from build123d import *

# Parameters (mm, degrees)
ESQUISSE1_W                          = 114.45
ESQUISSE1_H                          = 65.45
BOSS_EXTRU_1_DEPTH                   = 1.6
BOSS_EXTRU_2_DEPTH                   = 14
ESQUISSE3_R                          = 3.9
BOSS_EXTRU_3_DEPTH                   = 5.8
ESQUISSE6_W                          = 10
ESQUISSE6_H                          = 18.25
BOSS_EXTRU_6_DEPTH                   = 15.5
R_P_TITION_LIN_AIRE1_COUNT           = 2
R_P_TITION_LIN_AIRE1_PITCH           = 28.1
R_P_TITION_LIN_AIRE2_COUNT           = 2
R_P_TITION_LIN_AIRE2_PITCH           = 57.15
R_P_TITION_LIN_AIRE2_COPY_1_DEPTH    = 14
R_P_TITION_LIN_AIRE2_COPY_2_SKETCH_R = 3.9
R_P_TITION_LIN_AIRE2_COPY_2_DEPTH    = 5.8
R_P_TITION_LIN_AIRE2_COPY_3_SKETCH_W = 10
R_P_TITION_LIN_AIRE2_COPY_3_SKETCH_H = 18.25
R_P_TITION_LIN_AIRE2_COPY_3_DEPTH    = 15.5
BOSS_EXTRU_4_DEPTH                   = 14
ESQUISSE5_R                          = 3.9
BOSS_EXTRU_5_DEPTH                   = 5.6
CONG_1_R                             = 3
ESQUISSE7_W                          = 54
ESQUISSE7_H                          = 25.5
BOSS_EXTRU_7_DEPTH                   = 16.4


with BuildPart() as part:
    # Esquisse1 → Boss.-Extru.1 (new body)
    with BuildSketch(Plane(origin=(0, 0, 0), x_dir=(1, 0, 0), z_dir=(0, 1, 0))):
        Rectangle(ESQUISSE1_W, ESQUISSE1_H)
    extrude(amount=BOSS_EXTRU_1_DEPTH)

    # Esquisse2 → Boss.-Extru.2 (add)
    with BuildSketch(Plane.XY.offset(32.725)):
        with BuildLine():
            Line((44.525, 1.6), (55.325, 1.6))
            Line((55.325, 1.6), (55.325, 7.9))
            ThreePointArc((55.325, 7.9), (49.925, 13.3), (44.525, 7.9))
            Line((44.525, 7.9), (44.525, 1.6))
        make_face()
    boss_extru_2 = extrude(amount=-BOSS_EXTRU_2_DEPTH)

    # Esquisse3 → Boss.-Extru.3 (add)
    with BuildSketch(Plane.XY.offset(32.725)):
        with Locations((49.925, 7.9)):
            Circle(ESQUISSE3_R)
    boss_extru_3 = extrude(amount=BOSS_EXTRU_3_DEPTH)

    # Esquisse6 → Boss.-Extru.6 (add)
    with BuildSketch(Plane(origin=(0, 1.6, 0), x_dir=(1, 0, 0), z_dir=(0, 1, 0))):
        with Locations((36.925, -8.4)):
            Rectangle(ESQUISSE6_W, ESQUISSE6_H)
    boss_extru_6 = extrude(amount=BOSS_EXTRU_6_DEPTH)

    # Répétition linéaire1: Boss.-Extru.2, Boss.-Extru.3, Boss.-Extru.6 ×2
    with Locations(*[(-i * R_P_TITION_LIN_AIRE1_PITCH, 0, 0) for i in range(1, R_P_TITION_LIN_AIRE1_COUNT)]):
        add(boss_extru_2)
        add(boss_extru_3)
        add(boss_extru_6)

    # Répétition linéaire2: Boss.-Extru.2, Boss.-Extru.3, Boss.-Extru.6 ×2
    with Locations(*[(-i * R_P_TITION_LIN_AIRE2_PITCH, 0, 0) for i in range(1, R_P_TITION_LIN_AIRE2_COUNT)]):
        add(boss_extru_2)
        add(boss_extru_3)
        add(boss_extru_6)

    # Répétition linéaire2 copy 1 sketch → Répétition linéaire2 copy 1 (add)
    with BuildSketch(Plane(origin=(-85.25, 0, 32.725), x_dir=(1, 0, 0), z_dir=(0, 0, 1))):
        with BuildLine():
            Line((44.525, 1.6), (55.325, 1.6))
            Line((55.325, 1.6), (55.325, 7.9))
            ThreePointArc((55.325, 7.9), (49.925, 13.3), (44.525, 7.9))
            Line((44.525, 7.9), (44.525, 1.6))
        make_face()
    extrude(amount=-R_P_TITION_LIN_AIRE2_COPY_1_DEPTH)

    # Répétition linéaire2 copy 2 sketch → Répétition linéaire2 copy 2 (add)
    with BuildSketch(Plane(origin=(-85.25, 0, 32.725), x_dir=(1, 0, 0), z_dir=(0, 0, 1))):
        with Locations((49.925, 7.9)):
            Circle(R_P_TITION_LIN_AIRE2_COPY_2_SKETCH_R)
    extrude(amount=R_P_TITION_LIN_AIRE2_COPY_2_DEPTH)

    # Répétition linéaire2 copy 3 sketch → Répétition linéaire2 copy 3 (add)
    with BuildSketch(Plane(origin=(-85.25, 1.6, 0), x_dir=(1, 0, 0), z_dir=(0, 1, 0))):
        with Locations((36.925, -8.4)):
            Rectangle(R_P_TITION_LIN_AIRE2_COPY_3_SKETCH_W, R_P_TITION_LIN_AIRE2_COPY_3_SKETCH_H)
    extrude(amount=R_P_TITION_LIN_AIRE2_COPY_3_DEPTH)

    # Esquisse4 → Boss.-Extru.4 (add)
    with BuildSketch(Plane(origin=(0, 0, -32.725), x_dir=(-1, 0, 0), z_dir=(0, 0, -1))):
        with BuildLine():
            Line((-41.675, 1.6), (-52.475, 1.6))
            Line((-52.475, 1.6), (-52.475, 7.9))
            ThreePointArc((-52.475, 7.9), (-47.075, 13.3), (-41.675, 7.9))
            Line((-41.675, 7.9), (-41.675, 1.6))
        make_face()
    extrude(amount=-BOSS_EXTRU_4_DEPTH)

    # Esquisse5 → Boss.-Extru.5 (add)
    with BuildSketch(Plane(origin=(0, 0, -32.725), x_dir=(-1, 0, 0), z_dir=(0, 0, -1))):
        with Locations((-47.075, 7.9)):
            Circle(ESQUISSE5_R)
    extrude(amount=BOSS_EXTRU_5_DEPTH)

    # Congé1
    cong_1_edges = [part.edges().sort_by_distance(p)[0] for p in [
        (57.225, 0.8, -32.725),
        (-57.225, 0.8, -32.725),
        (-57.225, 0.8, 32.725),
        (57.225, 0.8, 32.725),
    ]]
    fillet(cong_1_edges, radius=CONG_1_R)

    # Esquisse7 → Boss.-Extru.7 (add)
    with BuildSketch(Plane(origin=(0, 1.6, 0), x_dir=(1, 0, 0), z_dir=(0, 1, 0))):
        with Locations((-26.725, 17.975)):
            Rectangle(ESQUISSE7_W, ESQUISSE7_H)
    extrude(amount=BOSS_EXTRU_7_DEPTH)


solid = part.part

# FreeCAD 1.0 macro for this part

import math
import FreeCAD as App
import Part
import Sketcher


def edges_at(feature, points):
    """Names of the edges that pass closest to the given points."""
    edges = feature.Shape.Edges
    near = lambda p: min(range(len(edges)), key=lambda i: edges[i].distToShape(Part.Vertex(*p))[0])
    return sorted({f"Edge{near(p) + 1}" for p in points})


def add_polygon(sketch, points):
    """Adds a closed chain of lines whose ends are joined by coincident constraints."""
    first, n = sketch.GeometryCount, len(points)
    for a, b in zip(points, points[1:] + points[:1]):
        sketch.addGeometry(Part.LineSegment(App.Vector(*a, 0), App.Vector(*b, 0)), False)
    for i in range(n):
        sketch.addConstraint(Sketcher.Constraint("Coincident", first + i, 2, first + (i + 1) % n, 1))

doc = App.newDocument("Part")
body = doc.addObject("PartDesign::Body", "Body")

sketch1 = body.newObject("Sketcher::SketchObject", "Sketch")
sketch1.AttachmentSupport = (doc.getObject("XZ_Plane"), [""])
sketch1.MapMode = "FlatFace"
add_polygon(sketch1, [(-57, -33), (-57, 33), (57, 33), (57, -33)])
sketch1.addConstraint(Sketcher.Constraint("Vertical", 0))
sketch1.addConstraint(Sketcher.Constraint("Horizontal", 1))
sketch1.addConstraint(Sketcher.Constraint("Vertical", 2))
sketch1.addConstraint(Sketcher.Constraint("Horizontal", 3))
sketch1.addConstraint(Sketcher.Constraint("Symmetric", 0, 2, 2, 2, -1, 1))
sketch1.addConstraint(Sketcher.Constraint("DistanceX", 1, 1, 1, 2, 114.45))
sketch1.addConstraint(Sketcher.Constraint("DistanceY", 0, 1, 0, 2, 65.45))
pad1 = body.newObject("PartDesign::Pad", "Pad")
pad1.Profile = sketch1
pad1.Length = 1.6
pad1.Reversed = True

sketch2 = body.newObject("Sketcher::SketchObject", "Sketch001")
sketch2.AttachmentSupport = (doc.getObject("XY_Plane"), [""])
sketch2.MapMode = "FlatFace"
sketch2.AttachmentOffset = App.Placement(App.Vector(0, 0, 32.725), App.Rotation())
sketch2.addGeometry(Part.LineSegment(App.Vector(45, 2, 0), App.Vector(55, 2, 0)), False)
sketch2.addGeometry(Part.LineSegment(App.Vector(55, 2, 0), App.Vector(55, 8, 0)), False)
sketch2.addGeometry(Part.ArcOfCircle(Part.Circle(App.Vector(50, 8, 0), App.Vector(0, 0, 1), 5), math.radians(0), math.radians(180)), False)
sketch2.addGeometry(Part.LineSegment(App.Vector(45, 8, 0), App.Vector(45, 2, 0)), False)
sketch2.addConstraint(Sketcher.Constraint("Coincident", 0, 2, 1, 1))
sketch2.addConstraint(Sketcher.Constraint("Tangent", 1, 2, 2, 1))
sketch2.addConstraint(Sketcher.Constraint("Tangent", 2, 2, 3, 1))
sketch2.addConstraint(Sketcher.Constraint("Coincident", 3, 2, 0, 1))
sketch2.addConstraint(Sketcher.Constraint("Horizontal", 0))
sketch2.addConstraint(Sketcher.Constraint("Vertical", 1))
sketch2.addConstraint(Sketcher.Constraint("Vertical", 3))
sketch2.addConstraint(Sketcher.Constraint("Radius", 2, 5.4))
sketch2.addConstraint(Sketcher.Constraint("DistanceY", 1, 1, 1, 2, 6.3))
sketch2.addConstraint(Sketcher.Constraint("DistanceY", -1, 1, 2, 3, 7.9))
sketch2.addConstraint(Sketcher.Constraint("DistanceX", -1, 1, 2, 3, 49.925))
pad2 = body.newObject("PartDesign::Pad", "Pad001")
pad2.Profile = sketch2
pad2.Length = 14
pad2.Reversed = True

sketch3 = body.newObject("Sketcher::SketchObject", "Sketch002")
sketch3.AttachmentSupport = (doc.getObject("XY_Plane"), [""])
sketch3.MapMode = "FlatFace"
sketch3.AttachmentOffset = App.Placement(App.Vector(0, 0, 32.725), App.Rotation())
sketch3.addGeometry(Part.Circle(App.Vector(49.9, 7.9, 0), App.Vector(0, 0, 1), 3.9), False)
sketch3.addConstraint(Sketcher.Constraint("Diameter", 0, 7.8))
sketch3.addConstraint(Sketcher.Constraint("DistanceY", -1, 1, 0, 3, 7.9))
sketch3.addConstraint(Sketcher.Constraint("DistanceX", -1, 1, 0, 3, 49.925))
pad3 = body.newObject("PartDesign::Pad", "Pad002")
pad3.Profile = sketch3
pad3.Length = 5.8

sketch4 = body.newObject("Sketcher::SketchObject", "Sketch003")
sketch4.AttachmentSupport = (doc.getObject("XZ_Plane"), [""])
sketch4.MapMode = "FlatFace"
sketch4.AttachmentOffset = App.Placement(App.Vector(0, 0, -1.6), App.Rotation())
add_polygon(sketch4, [(32, -1), (32, 18), (42, 18), (42, -1)])
sketch4.addConstraint(Sketcher.Constraint("Vertical", 0))
sketch4.addConstraint(Sketcher.Constraint("Horizontal", 1))
sketch4.addConstraint(Sketcher.Constraint("Vertical", 2))
sketch4.addConstraint(Sketcher.Constraint("Horizontal", 3))
sketch4.addConstraint(Sketcher.Constraint("DistanceX", 1, 1, 1, 2, 10.0))
sketch4.addConstraint(Sketcher.Constraint("DistanceY", 0, 1, 0, 2, 18.25))
sketch4.addConstraint(Sketcher.Constraint("DistanceX", -1, 1, 0, 2, 31.925))
sketch4.addConstraint(Sketcher.Constraint("DistanceY", -1, 1, 0, 2, 17.525))
pad4 = body.newObject("PartDesign::Pad", "Pad003")
pad4.Profile = sketch4
pad4.Length = 15.5
pad4.Reversed = True
doc.recompute()

linearpattern = body.newObject("PartDesign::LinearPattern", "LinearPattern")
linearpattern.Originals = [pad2, pad3, pad4]
linearpattern.Direction = (doc.getObject("X_Axis"), [""])
linearpattern.Mode = "offset"
linearpattern.Offset = 28.1
linearpattern.Occurrences = 2
linearpattern.Reversed = True
body.Tip = linearpattern
doc.recompute()

linearpattern2 = body.newObject("PartDesign::LinearPattern", "LinearPattern001")
linearpattern2.Originals = [pad2, pad3, pad4]
linearpattern2.Direction = (doc.getObject("X_Axis"), [""])
linearpattern2.Mode = "offset"
linearpattern2.Offset = 57.15
linearpattern2.Occurrences = 2
linearpattern2.Reversed = True
body.Tip = linearpattern2

sketch5 = body.newObject("Sketcher::SketchObject", "Sketch004")
sketch5.AttachmentSupport = (doc.getObject("XY_Plane"), [""])
sketch5.MapMode = "FlatFace"
sketch5.AttachmentOffset = App.Placement(App.Vector(0, 0, 32.725), App.Rotation())
sketch5.addGeometry(Part.LineSegment(App.Vector(-41, 2, 0), App.Vector(-30, 2, 0)), False)
sketch5.addGeometry(Part.LineSegment(App.Vector(-30, 2, 0), App.Vector(-30, 8, 0)), False)
sketch5.addGeometry(Part.ArcOfCircle(Part.Circle(App.Vector(-35, 8, 0), App.Vector(0, 0, 1), 5), math.radians(0), math.radians(180)), False)
sketch5.addGeometry(Part.LineSegment(App.Vector(-41, 8, 0), App.Vector(-41, 2, 0)), False)
sketch5.addConstraint(Sketcher.Constraint("Coincident", 0, 2, 1, 1))
sketch5.addConstraint(Sketcher.Constraint("Tangent", 1, 2, 2, 1))
sketch5.addConstraint(Sketcher.Constraint("Tangent", 2, 2, 3, 1))
sketch5.addConstraint(Sketcher.Constraint("Coincident", 3, 2, 0, 1))
sketch5.addConstraint(Sketcher.Constraint("Horizontal", 0))
sketch5.addConstraint(Sketcher.Constraint("Vertical", 1))
sketch5.addConstraint(Sketcher.Constraint("Vertical", 3))
sketch5.addConstraint(Sketcher.Constraint("Radius", 2, 5.4))
sketch5.addConstraint(Sketcher.Constraint("DistanceY", 1, 1, 1, 2, 6.3))
sketch5.addConstraint(Sketcher.Constraint("DistanceY", -1, 1, 2, 3, 7.9))
sketch5.addConstraint(Sketcher.Constraint("DistanceX", 2, 3, -1, 1, 35.325))
pad5 = body.newObject("PartDesign::Pad", "Pad004")
pad5.Profile = sketch5
pad5.Length = 14
pad5.Reversed = True

sketch6 = body.newObject("Sketcher::SketchObject", "Sketch005")
sketch6.AttachmentSupport = (doc.getObject("XY_Plane"), [""])
sketch6.MapMode = "FlatFace"
sketch6.AttachmentOffset = App.Placement(App.Vector(0, 0, 32.725), App.Rotation())
sketch6.addGeometry(Part.Circle(App.Vector(-35.3, 7.9, 0), App.Vector(0, 0, 1), 3.9), False)
sketch6.addConstraint(Sketcher.Constraint("Diameter", 0, 7.8))
sketch6.addConstraint(Sketcher.Constraint("DistanceY", -1, 1, 0, 3, 7.9))
sketch6.addConstraint(Sketcher.Constraint("DistanceX", 0, 3, -1, 1, 35.325))
pad6 = body.newObject("PartDesign::Pad", "Pad005")
pad6.Profile = sketch6
pad6.Length = 5.8

sketch7 = body.newObject("Sketcher::SketchObject", "Sketch006")
sketch7.AttachmentSupport = (doc.getObject("XZ_Plane"), [""])
sketch7.MapMode = "FlatFace"
sketch7.AttachmentOffset = App.Placement(App.Vector(0, 0, -1.6), App.Rotation())
add_polygon(sketch7, [(-53, -1), (-53, 18), (-43, 18), (-43, -1)])
sketch7.addConstraint(Sketcher.Constraint("Vertical", 0))
sketch7.addConstraint(Sketcher.Constraint("Horizontal", 1))
sketch7.addConstraint(Sketcher.Constraint("Vertical", 2))
sketch7.addConstraint(Sketcher.Constraint("Horizontal", 3))
sketch7.addConstraint(Sketcher.Constraint("DistanceX", 1, 1, 1, 2, 10.0))
sketch7.addConstraint(Sketcher.Constraint("DistanceY", 0, 1, 0, 2, 18.25))
sketch7.addConstraint(Sketcher.Constraint("DistanceX", 0, 2, -1, 1, 53.325))
sketch7.addConstraint(Sketcher.Constraint("DistanceY", -1, 1, 0, 2, 17.525))
pad7 = body.newObject("PartDesign::Pad", "Pad006")
pad7.Profile = sketch7
pad7.Length = 15.5
pad7.Reversed = True

sketch8 = body.newObject("Sketcher::SketchObject", "Sketch007")
sketch8.AttachmentSupport = (doc.getObject("XY_Plane"), [""])
sketch8.MapMode = "FlatFace"
sketch8.AttachmentOffset = App.Placement(App.Vector(0, 0, -32.725), App.Rotation())
sketch8.addGeometry(Part.LineSegment(App.Vector(52, 2, 0), App.Vector(42, 2, 0)), False)
sketch8.addGeometry(Part.LineSegment(App.Vector(42, 2, 0), App.Vector(42, 8, 0)), False)
sketch8.addGeometry(Part.ArcOfCircle(Part.Circle(App.Vector(47, 8, 0), App.Vector(0, 0, 1), 5), math.radians(0), math.radians(180)), False)
sketch8.addGeometry(Part.LineSegment(App.Vector(52, 8, 0), App.Vector(52, 2, 0)), False)
sketch8.addConstraint(Sketcher.Constraint("Coincident", 0, 2, 1, 1))
sketch8.addConstraint(Sketcher.Constraint("Tangent", 1, 2, 2, 2))
sketch8.addConstraint(Sketcher.Constraint("Tangent", 2, 1, 3, 1))
sketch8.addConstraint(Sketcher.Constraint("Coincident", 3, 2, 0, 1))
sketch8.addConstraint(Sketcher.Constraint("Horizontal", 0))
sketch8.addConstraint(Sketcher.Constraint("Vertical", 1))
sketch8.addConstraint(Sketcher.Constraint("Vertical", 3))
sketch8.addConstraint(Sketcher.Constraint("Radius", 2, 5.4))
sketch8.addConstraint(Sketcher.Constraint("DistanceY", 1, 1, 1, 2, 6.3))
sketch8.addConstraint(Sketcher.Constraint("DistanceY", -1, 1, 2, 3, 7.9))
sketch8.addConstraint(Sketcher.Constraint("DistanceX", -1, 1, 2, 3, 47.075))
pad8 = body.newObject("PartDesign::Pad", "Pad007")
pad8.Profile = sketch8
pad8.Length = 14

sketch9 = body.newObject("Sketcher::SketchObject", "Sketch008")
sketch9.AttachmentSupport = (doc.getObject("XY_Plane"), [""])
sketch9.MapMode = "FlatFace"
sketch9.AttachmentOffset = App.Placement(App.Vector(0, 0, -32.725), App.Rotation())
sketch9.addGeometry(Part.Circle(App.Vector(47.1, 7.9, 0), App.Vector(0, 0, 1), 3.9), False)
sketch9.addConstraint(Sketcher.Constraint("Diameter", 0, 7.8))
sketch9.addConstraint(Sketcher.Constraint("DistanceY", -1, 1, 0, 3, 7.9))
sketch9.addConstraint(Sketcher.Constraint("DistanceX", -1, 1, 0, 3, 47.075))
pad9 = body.newObject("PartDesign::Pad", "Pad008")
pad9.Profile = sketch9
pad9.Length = 5.6
pad9.Reversed = True
doc.recompute()

fillet = body.newObject("PartDesign::Fillet", "Fillet")
fillet.Base = (pad9, edges_at(pad9, [
    (57.225, 0.8, -32.725),
    (-57.225, 0.8, -32.725),
    (-57.225, 0.8, 32.725),
    (57.225, 0.8, 32.725),
]))
fillet.Radius = 3

sketch10 = body.newObject("Sketcher::SketchObject", "Sketch009")
sketch10.AttachmentSupport = (doc.getObject("XZ_Plane"), [""])
sketch10.MapMode = "FlatFace"
sketch10.AttachmentOffset = App.Placement(App.Vector(0, 0, -1.6), App.Rotation())
add_polygon(sketch10, [(-54, -31), (-54, -5), (0, -5), (0, -31)])
sketch10.addConstraint(Sketcher.Constraint("Vertical", 0))
sketch10.addConstraint(Sketcher.Constraint("Horizontal", 1))
sketch10.addConstraint(Sketcher.Constraint("Vertical", 2))
sketch10.addConstraint(Sketcher.Constraint("Horizontal", 3))
sketch10.addConstraint(Sketcher.Constraint("DistanceX", 1, 1, 1, 2, 54.0))
sketch10.addConstraint(Sketcher.Constraint("DistanceY", 0, 1, 0, 2, 25.5))
sketch10.addConstraint(Sketcher.Constraint("DistanceX", 0, 2, -1, 1, 53.725))
sketch10.addConstraint(Sketcher.Constraint("DistanceY", 0, 2, -1, 1, 5.225))
pad10 = body.newObject("PartDesign::Pad", "Pad009")
pad10.Profile = sketch10
pad10.Length = 16.4
pad10.Reversed = True

doc.recompute()
